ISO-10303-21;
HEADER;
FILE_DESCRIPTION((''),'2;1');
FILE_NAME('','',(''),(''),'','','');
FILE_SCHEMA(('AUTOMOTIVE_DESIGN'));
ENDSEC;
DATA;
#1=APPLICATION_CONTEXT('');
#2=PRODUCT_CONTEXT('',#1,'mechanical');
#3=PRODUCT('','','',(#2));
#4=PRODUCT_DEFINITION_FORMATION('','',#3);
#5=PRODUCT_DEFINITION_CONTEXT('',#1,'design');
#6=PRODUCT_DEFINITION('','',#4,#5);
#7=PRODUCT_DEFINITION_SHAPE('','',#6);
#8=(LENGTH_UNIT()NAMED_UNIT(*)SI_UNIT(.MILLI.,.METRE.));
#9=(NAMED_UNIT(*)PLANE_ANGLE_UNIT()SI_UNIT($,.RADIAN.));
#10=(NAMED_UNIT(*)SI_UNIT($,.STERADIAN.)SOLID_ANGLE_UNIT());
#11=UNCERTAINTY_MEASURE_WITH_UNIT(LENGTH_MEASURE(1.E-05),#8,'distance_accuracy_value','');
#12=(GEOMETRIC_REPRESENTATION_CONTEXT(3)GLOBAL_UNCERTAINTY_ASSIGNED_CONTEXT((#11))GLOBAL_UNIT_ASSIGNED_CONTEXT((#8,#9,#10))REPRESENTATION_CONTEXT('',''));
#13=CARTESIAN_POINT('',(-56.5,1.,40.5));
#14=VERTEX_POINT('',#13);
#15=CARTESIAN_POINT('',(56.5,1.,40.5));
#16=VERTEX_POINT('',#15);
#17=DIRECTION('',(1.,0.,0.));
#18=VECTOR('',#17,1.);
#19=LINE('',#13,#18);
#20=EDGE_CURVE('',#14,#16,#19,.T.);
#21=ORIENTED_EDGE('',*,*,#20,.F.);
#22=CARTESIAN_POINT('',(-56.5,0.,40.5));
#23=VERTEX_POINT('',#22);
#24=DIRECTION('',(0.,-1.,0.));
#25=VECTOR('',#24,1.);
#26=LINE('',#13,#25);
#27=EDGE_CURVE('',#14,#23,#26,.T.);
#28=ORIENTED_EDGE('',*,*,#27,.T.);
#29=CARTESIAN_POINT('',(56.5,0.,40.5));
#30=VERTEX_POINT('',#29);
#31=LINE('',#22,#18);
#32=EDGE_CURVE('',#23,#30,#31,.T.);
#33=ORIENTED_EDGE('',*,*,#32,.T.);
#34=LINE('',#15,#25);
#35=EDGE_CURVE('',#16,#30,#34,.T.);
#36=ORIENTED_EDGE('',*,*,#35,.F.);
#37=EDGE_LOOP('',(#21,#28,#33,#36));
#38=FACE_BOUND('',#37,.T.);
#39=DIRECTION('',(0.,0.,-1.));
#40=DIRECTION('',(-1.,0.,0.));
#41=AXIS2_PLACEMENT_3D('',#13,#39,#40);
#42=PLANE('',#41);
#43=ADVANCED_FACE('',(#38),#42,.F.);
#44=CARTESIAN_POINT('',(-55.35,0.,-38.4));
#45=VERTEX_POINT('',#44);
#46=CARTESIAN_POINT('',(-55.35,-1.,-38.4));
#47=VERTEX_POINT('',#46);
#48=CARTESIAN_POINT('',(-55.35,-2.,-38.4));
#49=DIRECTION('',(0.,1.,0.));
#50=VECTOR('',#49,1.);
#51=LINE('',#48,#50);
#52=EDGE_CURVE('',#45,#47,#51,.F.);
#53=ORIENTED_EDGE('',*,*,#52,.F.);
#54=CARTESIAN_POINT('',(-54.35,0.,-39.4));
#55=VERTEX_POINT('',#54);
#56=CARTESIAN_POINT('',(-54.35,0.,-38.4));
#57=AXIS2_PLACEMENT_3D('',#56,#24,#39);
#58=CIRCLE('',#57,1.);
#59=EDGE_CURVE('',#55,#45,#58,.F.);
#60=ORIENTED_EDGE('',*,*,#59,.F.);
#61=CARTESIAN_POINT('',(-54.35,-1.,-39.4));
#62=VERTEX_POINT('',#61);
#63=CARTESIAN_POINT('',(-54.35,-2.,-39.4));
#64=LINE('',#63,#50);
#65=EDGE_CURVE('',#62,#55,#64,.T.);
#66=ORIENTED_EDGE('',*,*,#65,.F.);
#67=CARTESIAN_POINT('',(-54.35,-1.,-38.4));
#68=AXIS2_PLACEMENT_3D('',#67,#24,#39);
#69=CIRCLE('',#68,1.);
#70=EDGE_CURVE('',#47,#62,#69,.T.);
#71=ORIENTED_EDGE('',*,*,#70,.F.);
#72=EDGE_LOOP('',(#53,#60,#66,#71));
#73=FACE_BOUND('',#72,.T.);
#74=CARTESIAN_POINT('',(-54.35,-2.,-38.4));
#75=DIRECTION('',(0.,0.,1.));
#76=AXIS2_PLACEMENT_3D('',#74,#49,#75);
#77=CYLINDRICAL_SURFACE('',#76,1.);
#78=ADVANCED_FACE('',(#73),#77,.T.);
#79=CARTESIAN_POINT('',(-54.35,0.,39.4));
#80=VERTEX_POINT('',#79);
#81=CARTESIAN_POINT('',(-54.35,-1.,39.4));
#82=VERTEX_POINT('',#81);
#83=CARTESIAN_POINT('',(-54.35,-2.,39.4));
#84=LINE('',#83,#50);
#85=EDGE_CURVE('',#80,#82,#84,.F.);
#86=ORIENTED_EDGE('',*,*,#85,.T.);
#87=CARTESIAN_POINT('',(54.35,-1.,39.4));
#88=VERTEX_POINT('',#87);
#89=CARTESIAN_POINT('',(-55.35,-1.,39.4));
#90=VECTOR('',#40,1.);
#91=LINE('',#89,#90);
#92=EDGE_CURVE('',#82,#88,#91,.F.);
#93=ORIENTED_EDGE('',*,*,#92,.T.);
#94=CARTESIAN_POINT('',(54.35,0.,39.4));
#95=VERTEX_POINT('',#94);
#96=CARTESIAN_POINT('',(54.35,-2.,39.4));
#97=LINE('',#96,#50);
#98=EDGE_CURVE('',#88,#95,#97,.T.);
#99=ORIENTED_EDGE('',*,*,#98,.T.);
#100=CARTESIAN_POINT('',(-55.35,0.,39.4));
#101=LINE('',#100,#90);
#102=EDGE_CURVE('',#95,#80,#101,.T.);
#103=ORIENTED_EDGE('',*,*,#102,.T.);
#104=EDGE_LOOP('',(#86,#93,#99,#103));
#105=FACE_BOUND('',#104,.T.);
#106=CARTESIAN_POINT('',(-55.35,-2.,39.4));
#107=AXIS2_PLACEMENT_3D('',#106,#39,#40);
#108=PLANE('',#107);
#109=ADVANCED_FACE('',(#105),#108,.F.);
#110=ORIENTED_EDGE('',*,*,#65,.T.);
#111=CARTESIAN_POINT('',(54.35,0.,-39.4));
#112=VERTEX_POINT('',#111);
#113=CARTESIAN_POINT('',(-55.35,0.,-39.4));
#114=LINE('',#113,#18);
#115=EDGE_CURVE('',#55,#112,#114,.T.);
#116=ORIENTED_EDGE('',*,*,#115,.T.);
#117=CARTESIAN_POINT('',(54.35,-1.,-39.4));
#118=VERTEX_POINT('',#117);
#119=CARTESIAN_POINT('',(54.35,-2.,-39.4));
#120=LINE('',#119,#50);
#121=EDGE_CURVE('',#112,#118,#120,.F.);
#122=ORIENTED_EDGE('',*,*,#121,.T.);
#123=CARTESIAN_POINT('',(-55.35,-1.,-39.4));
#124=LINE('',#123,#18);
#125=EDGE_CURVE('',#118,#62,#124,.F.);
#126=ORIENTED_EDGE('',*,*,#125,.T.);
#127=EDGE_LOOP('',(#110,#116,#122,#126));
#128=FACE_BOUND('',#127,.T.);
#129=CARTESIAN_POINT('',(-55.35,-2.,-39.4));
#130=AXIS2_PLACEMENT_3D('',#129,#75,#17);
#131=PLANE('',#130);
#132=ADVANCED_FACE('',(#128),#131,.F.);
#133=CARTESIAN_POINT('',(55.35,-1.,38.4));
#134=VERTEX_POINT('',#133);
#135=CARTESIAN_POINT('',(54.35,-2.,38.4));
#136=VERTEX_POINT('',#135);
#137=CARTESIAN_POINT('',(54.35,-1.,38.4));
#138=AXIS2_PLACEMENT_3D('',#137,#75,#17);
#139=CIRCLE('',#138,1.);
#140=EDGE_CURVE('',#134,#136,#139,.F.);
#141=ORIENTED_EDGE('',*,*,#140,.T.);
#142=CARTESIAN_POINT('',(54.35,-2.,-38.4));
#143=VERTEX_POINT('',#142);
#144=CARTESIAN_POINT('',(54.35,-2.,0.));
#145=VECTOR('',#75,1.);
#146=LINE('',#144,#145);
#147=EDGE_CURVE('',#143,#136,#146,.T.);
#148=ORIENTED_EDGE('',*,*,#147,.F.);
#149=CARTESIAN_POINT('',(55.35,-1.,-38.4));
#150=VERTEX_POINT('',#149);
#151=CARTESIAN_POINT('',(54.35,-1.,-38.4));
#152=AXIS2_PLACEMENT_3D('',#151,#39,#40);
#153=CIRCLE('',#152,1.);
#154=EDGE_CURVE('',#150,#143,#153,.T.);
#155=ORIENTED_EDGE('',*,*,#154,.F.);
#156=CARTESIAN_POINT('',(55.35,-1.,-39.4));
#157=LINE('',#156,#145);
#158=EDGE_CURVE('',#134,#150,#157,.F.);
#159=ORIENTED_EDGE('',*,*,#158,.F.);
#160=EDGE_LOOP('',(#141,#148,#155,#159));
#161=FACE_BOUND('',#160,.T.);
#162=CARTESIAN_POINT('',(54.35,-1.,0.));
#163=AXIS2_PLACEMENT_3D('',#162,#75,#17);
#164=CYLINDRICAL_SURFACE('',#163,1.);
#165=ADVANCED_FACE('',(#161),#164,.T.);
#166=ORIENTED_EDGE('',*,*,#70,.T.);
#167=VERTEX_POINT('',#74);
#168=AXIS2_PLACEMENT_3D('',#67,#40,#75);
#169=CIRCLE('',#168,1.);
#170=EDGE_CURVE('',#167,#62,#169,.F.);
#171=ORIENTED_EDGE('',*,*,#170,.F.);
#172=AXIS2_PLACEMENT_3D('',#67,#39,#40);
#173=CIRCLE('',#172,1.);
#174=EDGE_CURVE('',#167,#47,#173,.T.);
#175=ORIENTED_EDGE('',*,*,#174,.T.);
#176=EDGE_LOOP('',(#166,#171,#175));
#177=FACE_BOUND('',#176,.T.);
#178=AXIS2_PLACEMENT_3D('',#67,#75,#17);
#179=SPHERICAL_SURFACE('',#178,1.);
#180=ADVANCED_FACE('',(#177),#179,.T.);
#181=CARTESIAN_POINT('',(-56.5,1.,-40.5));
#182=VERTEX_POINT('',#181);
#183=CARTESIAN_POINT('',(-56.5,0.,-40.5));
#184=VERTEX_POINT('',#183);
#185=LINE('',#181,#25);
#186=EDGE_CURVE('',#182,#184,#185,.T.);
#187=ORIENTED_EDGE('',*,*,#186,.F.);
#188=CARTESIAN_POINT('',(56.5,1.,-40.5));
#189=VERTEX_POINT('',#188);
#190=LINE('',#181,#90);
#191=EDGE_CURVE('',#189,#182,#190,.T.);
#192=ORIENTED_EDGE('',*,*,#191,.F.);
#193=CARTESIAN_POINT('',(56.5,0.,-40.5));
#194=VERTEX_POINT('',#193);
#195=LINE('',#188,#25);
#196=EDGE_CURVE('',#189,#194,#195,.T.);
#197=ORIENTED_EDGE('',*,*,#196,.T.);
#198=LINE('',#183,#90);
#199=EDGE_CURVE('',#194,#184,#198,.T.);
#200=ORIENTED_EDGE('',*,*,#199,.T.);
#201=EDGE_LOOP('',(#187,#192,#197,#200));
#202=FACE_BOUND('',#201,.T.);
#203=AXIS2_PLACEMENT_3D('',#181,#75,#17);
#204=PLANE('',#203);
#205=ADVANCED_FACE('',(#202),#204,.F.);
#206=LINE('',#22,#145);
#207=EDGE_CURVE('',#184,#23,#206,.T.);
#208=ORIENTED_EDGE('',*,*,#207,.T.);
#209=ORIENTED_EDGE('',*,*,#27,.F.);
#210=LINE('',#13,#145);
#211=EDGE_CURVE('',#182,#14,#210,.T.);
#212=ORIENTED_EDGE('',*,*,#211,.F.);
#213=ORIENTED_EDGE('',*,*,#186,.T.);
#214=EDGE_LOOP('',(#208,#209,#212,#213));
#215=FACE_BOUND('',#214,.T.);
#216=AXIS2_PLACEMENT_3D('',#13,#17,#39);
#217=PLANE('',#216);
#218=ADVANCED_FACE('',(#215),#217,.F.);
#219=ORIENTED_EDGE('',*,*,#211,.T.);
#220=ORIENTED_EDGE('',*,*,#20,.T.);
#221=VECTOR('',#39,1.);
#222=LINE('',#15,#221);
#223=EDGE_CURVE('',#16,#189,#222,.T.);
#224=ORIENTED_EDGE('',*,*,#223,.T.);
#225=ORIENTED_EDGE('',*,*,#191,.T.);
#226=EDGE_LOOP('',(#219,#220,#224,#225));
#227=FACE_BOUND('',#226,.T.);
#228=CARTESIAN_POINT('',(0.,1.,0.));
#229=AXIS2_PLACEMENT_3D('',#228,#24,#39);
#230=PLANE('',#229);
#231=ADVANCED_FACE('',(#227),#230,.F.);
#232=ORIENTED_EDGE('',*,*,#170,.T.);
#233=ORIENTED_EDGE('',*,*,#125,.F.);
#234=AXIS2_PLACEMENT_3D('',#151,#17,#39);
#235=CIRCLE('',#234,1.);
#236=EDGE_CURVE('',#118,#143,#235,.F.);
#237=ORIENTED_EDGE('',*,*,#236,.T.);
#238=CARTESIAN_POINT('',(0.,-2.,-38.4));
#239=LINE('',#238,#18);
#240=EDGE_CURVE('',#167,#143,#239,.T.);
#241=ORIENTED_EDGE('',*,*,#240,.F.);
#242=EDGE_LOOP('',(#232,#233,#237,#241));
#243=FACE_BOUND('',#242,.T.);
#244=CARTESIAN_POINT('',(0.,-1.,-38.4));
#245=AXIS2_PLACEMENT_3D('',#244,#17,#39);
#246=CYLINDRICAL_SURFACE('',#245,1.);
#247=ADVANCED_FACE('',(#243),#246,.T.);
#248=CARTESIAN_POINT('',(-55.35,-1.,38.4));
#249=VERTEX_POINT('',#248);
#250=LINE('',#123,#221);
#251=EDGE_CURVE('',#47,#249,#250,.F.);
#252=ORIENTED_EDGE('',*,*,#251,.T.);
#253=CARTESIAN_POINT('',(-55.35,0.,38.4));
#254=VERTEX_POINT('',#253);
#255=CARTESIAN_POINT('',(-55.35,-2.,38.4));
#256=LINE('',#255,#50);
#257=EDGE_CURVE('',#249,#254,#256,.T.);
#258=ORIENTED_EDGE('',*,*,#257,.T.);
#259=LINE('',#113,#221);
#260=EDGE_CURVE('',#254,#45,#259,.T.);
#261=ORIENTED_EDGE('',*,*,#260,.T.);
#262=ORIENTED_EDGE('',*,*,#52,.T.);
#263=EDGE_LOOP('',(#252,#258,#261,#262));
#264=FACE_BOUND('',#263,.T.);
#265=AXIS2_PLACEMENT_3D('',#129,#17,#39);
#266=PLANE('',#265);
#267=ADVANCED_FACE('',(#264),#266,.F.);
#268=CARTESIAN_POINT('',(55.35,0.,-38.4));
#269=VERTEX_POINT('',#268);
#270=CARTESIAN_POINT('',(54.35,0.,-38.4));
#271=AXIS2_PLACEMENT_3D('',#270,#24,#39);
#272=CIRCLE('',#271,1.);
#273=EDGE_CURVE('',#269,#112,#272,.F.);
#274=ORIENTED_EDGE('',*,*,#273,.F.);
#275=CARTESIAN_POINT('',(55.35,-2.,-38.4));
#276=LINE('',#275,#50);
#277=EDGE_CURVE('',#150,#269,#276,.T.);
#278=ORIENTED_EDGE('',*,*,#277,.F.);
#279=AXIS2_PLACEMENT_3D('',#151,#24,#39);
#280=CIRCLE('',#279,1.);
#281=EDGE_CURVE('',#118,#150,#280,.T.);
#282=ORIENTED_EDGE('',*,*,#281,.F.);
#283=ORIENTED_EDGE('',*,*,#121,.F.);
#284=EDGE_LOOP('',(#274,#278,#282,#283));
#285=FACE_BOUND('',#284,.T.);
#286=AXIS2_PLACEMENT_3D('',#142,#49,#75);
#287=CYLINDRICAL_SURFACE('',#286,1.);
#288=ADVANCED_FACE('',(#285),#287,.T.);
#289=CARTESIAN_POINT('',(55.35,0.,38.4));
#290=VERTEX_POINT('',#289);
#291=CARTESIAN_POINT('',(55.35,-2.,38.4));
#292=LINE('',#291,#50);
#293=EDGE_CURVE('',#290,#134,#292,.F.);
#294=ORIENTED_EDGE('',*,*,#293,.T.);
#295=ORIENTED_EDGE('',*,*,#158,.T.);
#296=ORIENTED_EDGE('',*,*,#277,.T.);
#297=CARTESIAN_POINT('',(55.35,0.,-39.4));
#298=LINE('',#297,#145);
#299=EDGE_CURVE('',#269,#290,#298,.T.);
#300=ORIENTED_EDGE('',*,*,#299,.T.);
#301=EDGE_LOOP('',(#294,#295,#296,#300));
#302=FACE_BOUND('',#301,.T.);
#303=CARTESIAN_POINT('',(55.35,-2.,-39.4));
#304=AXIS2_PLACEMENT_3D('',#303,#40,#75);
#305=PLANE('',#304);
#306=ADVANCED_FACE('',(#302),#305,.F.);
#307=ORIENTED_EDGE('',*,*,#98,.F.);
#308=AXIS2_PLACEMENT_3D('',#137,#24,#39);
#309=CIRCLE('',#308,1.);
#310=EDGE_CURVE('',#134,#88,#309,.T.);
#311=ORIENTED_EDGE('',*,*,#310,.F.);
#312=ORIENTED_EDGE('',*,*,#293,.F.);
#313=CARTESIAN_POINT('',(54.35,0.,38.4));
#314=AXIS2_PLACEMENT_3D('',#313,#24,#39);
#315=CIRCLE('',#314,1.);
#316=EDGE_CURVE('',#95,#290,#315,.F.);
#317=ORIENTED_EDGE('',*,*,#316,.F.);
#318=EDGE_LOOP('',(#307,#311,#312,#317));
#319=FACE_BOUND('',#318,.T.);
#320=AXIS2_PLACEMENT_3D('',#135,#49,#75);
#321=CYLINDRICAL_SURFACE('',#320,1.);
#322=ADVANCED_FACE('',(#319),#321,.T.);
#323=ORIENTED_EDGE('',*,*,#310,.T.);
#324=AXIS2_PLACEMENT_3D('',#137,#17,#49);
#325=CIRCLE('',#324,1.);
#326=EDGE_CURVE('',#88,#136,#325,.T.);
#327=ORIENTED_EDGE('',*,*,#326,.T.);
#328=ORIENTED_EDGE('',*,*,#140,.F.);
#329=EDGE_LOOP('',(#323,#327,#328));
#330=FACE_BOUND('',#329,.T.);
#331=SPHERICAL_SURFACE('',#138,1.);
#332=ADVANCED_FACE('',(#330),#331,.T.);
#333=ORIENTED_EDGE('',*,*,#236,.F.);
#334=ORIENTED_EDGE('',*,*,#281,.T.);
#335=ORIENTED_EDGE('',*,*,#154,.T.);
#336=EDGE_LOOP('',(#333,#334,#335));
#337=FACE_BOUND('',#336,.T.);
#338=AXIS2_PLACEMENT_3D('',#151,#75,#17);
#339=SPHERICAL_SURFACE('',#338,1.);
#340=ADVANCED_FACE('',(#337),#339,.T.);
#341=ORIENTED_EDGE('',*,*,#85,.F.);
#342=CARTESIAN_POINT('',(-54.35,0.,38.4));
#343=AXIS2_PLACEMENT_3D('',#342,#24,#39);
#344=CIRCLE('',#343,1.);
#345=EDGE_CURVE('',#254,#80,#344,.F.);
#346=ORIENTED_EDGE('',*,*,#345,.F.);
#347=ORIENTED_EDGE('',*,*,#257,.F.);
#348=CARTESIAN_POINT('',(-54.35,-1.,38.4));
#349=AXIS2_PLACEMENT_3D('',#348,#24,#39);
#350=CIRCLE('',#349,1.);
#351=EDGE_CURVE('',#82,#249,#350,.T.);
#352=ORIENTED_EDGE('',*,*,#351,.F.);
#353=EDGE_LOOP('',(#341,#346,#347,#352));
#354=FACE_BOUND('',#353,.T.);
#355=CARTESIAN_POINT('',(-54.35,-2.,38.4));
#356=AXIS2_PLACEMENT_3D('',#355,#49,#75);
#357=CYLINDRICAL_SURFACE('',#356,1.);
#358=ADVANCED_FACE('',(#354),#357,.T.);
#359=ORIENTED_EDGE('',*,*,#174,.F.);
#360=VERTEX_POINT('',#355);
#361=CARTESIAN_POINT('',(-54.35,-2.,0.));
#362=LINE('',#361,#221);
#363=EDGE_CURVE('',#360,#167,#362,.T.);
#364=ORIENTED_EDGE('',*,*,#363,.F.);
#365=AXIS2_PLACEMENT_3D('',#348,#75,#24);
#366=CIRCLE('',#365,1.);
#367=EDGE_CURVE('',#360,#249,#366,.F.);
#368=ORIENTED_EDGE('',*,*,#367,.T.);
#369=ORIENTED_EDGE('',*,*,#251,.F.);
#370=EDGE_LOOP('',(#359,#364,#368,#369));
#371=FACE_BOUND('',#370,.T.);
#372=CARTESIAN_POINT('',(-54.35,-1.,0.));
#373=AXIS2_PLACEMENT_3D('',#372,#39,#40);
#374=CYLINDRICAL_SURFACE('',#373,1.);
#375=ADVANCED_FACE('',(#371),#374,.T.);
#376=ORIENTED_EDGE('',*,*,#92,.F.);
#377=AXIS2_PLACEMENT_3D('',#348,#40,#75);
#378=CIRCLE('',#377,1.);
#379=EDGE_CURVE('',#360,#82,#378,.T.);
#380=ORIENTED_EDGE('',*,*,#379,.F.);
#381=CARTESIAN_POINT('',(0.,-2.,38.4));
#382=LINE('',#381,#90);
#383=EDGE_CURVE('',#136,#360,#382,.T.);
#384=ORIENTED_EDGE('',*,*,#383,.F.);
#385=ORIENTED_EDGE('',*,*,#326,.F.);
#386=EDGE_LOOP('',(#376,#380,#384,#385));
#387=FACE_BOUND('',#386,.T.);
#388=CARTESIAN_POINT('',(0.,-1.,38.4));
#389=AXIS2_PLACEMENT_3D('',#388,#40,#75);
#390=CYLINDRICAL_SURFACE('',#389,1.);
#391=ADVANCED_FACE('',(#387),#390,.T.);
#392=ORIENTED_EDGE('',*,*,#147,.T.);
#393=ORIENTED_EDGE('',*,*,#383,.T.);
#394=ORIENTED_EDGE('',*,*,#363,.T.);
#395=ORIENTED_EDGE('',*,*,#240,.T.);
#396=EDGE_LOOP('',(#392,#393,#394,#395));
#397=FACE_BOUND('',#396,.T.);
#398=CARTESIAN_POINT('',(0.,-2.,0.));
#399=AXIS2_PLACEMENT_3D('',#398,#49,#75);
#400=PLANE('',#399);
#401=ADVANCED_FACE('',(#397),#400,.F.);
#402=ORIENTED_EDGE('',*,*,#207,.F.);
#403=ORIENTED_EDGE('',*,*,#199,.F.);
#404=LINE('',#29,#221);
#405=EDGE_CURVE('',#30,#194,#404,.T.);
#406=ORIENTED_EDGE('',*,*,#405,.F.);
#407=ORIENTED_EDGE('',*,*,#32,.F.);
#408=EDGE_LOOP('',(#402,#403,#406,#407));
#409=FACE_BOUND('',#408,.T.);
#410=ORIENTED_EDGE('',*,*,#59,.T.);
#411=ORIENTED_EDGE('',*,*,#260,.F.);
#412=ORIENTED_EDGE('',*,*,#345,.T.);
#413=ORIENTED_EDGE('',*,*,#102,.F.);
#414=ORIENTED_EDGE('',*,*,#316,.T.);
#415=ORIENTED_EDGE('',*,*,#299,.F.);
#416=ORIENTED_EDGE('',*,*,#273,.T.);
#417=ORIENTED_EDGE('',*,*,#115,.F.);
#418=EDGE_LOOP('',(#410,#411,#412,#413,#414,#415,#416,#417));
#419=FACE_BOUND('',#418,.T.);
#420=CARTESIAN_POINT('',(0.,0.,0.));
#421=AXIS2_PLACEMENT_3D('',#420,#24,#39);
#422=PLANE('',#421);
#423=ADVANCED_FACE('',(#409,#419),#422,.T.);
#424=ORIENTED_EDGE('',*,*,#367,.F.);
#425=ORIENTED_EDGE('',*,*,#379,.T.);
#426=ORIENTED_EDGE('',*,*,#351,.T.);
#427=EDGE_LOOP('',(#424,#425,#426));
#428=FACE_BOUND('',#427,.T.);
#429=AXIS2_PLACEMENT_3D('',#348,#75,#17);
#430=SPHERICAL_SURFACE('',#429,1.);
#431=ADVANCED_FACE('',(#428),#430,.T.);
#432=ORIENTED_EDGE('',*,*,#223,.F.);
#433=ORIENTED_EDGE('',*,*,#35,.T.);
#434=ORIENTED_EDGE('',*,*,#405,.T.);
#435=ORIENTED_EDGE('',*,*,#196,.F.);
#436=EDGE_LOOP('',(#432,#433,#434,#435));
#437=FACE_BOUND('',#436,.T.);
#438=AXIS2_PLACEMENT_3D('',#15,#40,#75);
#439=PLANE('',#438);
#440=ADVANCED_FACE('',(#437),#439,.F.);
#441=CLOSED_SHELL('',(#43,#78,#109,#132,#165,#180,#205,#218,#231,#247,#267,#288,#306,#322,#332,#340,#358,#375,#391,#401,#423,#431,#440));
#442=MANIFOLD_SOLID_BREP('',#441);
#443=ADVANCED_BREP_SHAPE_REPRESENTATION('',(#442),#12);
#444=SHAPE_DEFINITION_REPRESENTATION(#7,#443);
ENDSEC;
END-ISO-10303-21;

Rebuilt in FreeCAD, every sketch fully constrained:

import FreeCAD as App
import Part
import Sketcher
from FreeCAD import Vector
Q = App.Units.Quantity


def edges_at(feature, points):
    """Names of the edges that pass closest to the given points."""
    edges = feature.Shape.Edges
    near = lambda p: min(range(len(edges)), key=lambda i: edges[i].distToShape(Part.Vertex(*p))[0])
    return sorted({f"Edge{near(p) + 1}" for p in points})

doc = App.newDocument("Part")
params = doc.addObject("Spreadsheet::Sheet", "Params")
for row, (alias, value) in enumerate([
    ("sketch1_width", "113 mm"),
    ("sketch1_height", "81 mm"),
    ("pad1_length", "1 mm"),
    ("sketch2_width", "110.7 mm"),
    ("sketch2_height", "78.8 mm"),
    ("pad2_length", "2 mm"),
    ("fillet_radius", "1 mm"),
], start=1):
    params.set(f"A{row}", alias)
    params.set(f"B{row}", "=" + value)
    params.setAlias(f"B{row}", alias)

body = doc.addObject("PartDesign::Body", "Body")

# Sketch on XZ plane
sketch1 = body.newObject("Sketcher::SketchObject", "Sketch")
sketch1.AttachmentSupport = (doc.getObject("XZ_Plane"), [""])
sketch1.MapMode = "FlatFace"
sketch1.addGeometry(Part.LineSegment(Vector(-56, -40, 0), Vector(-56, 40, 0)), False)
sketch1.addGeometry(Part.LineSegment(Vector(-56, 40, 0), Vector(56, 40, 0)), False)
sketch1.addGeometry(Part.LineSegment(Vector(56, 40, 0), Vector(56, -40, 0)), False)
sketch1.addGeometry(Part.LineSegment(Vector(56, -40, 0), Vector(-56, -40, 0)), False)
sketch1.addConstraint(Sketcher.Constraint("Coincident", 0, 2, 1, 1))
sketch1.addConstraint(Sketcher.Constraint("Coincident", 1, 2, 2, 1))
sketch1.addConstraint(Sketcher.Constraint("Coincident", 2, 2, 3, 1))
sketch1.addConstraint(Sketcher.Constraint("Coincident", 3, 2, 0, 1))
sketch1.addConstraint(Sketcher.Constraint("Vertical", 0))
sketch1.addConstraint(Sketcher.Constraint("Horizontal", 1))
sketch1.addConstraint(Sketcher.Constraint("Vertical", 2))
sketch1.addConstraint(Sketcher.Constraint("Horizontal", 3))
sketch1.addConstraint(Sketcher.Constraint("Symmetric", 0, 2, 2, 2, -1, 1))
sketch1.addConstraint(Sketcher.Constraint("DistanceX", 1, 1, 1, 2, Q("113 mm")))
sketch1.addConstraint(Sketcher.Constraint("DistanceY", 0, 1, 0, 2, Q("81 mm")))
sketch1.setExpression("Constraints[9]", "Params.sketch1_width")
sketch1.setExpression("Constraints[10]", "Params.sketch1_height")
pad1 = body.newObject("PartDesign::Pad", "Pad")
pad1.Profile = sketch1
pad1.setExpression("Length", "Params.pad1_length")
pad1.Reversed = True

# Sketch on XZ plane
sketch2 = body.newObject("Sketcher::SketchObject", "Sketch001")
sketch2.AttachmentSupport = (doc.getObject("XZ_Plane"), [""])
sketch2.MapMode = "FlatFace"
sketch2.addGeometry(Part.LineSegment(Vector(-55, 39, 0), Vector(-55, -39, 0)), False)
sketch2.addGeometry(Part.LineSegment(Vector(-55, -39, 0), Vector(55, -39, 0)), False)
sketch2.addGeometry(Part.LineSegment(Vector(55, -39, 0), Vector(55, 39, 0)), False)
sketch2.addGeometry(Part.LineSegment(Vector(55, 39, 0), Vector(-55, 39, 0)), False)
sketch2.addConstraint(Sketcher.Constraint("Coincident", 0, 2, 1, 1))
sketch2.addConstraint(Sketcher.Constraint("Coincident", 1, 2, 2, 1))
sketch2.addConstraint(Sketcher.Constraint("Coincident", 2, 2, 3, 1))
sketch2.addConstraint(Sketcher.Constraint("Coincident", 3, 2, 0, 1))
sketch2.addConstraint(Sketcher.Constraint("Vertical", 0))
sketch2.addConstraint(Sketcher.Constraint("Horizontal", 1))
sketch2.addConstraint(Sketcher.Constraint("Vertical", 2))
sketch2.addConstraint(Sketcher.Constraint("Horizontal", 3))
sketch2.addConstraint(Sketcher.Constraint("Symmetric", 0, 2, 2, 2, -1, 1))
sketch2.addConstraint(Sketcher.Constraint("DistanceX", 1, 1, 1, 2, Q("110.7 mm")))
sketch2.addConstraint(Sketcher.Constraint("DistanceY", 0, 2, 0, 1, Q("78.8 mm")))
sketch2.setExpression("Constraints[9]", "Params.sketch2_width")
sketch2.setExpression("Constraints[10]", "Params.sketch2_height")
pad2 = body.newObject("PartDesign::Pad", "Pad001")
pad2.Profile = sketch2
pad2.setExpression("Length", "Params.pad2_length")
doc.recompute()

fillet = body.newObject("PartDesign::Fillet", "Fillet")
fillet.Base = (pad2, edges_at(pad2, [
    (55.35, -1, -39.4),
    (55.35, -1, 39.4),
    (-55.35, -1, 39.4),
    (-55.35, -1, -39.4),
    (55.35, -2, 0),
    (0, -2, 39.4),
    (-55.35, -2, 0),
    (0, -2, -39.4),
]))
fillet.setExpression("Radius", "Params.fillet_radius")

doc.recompute()
